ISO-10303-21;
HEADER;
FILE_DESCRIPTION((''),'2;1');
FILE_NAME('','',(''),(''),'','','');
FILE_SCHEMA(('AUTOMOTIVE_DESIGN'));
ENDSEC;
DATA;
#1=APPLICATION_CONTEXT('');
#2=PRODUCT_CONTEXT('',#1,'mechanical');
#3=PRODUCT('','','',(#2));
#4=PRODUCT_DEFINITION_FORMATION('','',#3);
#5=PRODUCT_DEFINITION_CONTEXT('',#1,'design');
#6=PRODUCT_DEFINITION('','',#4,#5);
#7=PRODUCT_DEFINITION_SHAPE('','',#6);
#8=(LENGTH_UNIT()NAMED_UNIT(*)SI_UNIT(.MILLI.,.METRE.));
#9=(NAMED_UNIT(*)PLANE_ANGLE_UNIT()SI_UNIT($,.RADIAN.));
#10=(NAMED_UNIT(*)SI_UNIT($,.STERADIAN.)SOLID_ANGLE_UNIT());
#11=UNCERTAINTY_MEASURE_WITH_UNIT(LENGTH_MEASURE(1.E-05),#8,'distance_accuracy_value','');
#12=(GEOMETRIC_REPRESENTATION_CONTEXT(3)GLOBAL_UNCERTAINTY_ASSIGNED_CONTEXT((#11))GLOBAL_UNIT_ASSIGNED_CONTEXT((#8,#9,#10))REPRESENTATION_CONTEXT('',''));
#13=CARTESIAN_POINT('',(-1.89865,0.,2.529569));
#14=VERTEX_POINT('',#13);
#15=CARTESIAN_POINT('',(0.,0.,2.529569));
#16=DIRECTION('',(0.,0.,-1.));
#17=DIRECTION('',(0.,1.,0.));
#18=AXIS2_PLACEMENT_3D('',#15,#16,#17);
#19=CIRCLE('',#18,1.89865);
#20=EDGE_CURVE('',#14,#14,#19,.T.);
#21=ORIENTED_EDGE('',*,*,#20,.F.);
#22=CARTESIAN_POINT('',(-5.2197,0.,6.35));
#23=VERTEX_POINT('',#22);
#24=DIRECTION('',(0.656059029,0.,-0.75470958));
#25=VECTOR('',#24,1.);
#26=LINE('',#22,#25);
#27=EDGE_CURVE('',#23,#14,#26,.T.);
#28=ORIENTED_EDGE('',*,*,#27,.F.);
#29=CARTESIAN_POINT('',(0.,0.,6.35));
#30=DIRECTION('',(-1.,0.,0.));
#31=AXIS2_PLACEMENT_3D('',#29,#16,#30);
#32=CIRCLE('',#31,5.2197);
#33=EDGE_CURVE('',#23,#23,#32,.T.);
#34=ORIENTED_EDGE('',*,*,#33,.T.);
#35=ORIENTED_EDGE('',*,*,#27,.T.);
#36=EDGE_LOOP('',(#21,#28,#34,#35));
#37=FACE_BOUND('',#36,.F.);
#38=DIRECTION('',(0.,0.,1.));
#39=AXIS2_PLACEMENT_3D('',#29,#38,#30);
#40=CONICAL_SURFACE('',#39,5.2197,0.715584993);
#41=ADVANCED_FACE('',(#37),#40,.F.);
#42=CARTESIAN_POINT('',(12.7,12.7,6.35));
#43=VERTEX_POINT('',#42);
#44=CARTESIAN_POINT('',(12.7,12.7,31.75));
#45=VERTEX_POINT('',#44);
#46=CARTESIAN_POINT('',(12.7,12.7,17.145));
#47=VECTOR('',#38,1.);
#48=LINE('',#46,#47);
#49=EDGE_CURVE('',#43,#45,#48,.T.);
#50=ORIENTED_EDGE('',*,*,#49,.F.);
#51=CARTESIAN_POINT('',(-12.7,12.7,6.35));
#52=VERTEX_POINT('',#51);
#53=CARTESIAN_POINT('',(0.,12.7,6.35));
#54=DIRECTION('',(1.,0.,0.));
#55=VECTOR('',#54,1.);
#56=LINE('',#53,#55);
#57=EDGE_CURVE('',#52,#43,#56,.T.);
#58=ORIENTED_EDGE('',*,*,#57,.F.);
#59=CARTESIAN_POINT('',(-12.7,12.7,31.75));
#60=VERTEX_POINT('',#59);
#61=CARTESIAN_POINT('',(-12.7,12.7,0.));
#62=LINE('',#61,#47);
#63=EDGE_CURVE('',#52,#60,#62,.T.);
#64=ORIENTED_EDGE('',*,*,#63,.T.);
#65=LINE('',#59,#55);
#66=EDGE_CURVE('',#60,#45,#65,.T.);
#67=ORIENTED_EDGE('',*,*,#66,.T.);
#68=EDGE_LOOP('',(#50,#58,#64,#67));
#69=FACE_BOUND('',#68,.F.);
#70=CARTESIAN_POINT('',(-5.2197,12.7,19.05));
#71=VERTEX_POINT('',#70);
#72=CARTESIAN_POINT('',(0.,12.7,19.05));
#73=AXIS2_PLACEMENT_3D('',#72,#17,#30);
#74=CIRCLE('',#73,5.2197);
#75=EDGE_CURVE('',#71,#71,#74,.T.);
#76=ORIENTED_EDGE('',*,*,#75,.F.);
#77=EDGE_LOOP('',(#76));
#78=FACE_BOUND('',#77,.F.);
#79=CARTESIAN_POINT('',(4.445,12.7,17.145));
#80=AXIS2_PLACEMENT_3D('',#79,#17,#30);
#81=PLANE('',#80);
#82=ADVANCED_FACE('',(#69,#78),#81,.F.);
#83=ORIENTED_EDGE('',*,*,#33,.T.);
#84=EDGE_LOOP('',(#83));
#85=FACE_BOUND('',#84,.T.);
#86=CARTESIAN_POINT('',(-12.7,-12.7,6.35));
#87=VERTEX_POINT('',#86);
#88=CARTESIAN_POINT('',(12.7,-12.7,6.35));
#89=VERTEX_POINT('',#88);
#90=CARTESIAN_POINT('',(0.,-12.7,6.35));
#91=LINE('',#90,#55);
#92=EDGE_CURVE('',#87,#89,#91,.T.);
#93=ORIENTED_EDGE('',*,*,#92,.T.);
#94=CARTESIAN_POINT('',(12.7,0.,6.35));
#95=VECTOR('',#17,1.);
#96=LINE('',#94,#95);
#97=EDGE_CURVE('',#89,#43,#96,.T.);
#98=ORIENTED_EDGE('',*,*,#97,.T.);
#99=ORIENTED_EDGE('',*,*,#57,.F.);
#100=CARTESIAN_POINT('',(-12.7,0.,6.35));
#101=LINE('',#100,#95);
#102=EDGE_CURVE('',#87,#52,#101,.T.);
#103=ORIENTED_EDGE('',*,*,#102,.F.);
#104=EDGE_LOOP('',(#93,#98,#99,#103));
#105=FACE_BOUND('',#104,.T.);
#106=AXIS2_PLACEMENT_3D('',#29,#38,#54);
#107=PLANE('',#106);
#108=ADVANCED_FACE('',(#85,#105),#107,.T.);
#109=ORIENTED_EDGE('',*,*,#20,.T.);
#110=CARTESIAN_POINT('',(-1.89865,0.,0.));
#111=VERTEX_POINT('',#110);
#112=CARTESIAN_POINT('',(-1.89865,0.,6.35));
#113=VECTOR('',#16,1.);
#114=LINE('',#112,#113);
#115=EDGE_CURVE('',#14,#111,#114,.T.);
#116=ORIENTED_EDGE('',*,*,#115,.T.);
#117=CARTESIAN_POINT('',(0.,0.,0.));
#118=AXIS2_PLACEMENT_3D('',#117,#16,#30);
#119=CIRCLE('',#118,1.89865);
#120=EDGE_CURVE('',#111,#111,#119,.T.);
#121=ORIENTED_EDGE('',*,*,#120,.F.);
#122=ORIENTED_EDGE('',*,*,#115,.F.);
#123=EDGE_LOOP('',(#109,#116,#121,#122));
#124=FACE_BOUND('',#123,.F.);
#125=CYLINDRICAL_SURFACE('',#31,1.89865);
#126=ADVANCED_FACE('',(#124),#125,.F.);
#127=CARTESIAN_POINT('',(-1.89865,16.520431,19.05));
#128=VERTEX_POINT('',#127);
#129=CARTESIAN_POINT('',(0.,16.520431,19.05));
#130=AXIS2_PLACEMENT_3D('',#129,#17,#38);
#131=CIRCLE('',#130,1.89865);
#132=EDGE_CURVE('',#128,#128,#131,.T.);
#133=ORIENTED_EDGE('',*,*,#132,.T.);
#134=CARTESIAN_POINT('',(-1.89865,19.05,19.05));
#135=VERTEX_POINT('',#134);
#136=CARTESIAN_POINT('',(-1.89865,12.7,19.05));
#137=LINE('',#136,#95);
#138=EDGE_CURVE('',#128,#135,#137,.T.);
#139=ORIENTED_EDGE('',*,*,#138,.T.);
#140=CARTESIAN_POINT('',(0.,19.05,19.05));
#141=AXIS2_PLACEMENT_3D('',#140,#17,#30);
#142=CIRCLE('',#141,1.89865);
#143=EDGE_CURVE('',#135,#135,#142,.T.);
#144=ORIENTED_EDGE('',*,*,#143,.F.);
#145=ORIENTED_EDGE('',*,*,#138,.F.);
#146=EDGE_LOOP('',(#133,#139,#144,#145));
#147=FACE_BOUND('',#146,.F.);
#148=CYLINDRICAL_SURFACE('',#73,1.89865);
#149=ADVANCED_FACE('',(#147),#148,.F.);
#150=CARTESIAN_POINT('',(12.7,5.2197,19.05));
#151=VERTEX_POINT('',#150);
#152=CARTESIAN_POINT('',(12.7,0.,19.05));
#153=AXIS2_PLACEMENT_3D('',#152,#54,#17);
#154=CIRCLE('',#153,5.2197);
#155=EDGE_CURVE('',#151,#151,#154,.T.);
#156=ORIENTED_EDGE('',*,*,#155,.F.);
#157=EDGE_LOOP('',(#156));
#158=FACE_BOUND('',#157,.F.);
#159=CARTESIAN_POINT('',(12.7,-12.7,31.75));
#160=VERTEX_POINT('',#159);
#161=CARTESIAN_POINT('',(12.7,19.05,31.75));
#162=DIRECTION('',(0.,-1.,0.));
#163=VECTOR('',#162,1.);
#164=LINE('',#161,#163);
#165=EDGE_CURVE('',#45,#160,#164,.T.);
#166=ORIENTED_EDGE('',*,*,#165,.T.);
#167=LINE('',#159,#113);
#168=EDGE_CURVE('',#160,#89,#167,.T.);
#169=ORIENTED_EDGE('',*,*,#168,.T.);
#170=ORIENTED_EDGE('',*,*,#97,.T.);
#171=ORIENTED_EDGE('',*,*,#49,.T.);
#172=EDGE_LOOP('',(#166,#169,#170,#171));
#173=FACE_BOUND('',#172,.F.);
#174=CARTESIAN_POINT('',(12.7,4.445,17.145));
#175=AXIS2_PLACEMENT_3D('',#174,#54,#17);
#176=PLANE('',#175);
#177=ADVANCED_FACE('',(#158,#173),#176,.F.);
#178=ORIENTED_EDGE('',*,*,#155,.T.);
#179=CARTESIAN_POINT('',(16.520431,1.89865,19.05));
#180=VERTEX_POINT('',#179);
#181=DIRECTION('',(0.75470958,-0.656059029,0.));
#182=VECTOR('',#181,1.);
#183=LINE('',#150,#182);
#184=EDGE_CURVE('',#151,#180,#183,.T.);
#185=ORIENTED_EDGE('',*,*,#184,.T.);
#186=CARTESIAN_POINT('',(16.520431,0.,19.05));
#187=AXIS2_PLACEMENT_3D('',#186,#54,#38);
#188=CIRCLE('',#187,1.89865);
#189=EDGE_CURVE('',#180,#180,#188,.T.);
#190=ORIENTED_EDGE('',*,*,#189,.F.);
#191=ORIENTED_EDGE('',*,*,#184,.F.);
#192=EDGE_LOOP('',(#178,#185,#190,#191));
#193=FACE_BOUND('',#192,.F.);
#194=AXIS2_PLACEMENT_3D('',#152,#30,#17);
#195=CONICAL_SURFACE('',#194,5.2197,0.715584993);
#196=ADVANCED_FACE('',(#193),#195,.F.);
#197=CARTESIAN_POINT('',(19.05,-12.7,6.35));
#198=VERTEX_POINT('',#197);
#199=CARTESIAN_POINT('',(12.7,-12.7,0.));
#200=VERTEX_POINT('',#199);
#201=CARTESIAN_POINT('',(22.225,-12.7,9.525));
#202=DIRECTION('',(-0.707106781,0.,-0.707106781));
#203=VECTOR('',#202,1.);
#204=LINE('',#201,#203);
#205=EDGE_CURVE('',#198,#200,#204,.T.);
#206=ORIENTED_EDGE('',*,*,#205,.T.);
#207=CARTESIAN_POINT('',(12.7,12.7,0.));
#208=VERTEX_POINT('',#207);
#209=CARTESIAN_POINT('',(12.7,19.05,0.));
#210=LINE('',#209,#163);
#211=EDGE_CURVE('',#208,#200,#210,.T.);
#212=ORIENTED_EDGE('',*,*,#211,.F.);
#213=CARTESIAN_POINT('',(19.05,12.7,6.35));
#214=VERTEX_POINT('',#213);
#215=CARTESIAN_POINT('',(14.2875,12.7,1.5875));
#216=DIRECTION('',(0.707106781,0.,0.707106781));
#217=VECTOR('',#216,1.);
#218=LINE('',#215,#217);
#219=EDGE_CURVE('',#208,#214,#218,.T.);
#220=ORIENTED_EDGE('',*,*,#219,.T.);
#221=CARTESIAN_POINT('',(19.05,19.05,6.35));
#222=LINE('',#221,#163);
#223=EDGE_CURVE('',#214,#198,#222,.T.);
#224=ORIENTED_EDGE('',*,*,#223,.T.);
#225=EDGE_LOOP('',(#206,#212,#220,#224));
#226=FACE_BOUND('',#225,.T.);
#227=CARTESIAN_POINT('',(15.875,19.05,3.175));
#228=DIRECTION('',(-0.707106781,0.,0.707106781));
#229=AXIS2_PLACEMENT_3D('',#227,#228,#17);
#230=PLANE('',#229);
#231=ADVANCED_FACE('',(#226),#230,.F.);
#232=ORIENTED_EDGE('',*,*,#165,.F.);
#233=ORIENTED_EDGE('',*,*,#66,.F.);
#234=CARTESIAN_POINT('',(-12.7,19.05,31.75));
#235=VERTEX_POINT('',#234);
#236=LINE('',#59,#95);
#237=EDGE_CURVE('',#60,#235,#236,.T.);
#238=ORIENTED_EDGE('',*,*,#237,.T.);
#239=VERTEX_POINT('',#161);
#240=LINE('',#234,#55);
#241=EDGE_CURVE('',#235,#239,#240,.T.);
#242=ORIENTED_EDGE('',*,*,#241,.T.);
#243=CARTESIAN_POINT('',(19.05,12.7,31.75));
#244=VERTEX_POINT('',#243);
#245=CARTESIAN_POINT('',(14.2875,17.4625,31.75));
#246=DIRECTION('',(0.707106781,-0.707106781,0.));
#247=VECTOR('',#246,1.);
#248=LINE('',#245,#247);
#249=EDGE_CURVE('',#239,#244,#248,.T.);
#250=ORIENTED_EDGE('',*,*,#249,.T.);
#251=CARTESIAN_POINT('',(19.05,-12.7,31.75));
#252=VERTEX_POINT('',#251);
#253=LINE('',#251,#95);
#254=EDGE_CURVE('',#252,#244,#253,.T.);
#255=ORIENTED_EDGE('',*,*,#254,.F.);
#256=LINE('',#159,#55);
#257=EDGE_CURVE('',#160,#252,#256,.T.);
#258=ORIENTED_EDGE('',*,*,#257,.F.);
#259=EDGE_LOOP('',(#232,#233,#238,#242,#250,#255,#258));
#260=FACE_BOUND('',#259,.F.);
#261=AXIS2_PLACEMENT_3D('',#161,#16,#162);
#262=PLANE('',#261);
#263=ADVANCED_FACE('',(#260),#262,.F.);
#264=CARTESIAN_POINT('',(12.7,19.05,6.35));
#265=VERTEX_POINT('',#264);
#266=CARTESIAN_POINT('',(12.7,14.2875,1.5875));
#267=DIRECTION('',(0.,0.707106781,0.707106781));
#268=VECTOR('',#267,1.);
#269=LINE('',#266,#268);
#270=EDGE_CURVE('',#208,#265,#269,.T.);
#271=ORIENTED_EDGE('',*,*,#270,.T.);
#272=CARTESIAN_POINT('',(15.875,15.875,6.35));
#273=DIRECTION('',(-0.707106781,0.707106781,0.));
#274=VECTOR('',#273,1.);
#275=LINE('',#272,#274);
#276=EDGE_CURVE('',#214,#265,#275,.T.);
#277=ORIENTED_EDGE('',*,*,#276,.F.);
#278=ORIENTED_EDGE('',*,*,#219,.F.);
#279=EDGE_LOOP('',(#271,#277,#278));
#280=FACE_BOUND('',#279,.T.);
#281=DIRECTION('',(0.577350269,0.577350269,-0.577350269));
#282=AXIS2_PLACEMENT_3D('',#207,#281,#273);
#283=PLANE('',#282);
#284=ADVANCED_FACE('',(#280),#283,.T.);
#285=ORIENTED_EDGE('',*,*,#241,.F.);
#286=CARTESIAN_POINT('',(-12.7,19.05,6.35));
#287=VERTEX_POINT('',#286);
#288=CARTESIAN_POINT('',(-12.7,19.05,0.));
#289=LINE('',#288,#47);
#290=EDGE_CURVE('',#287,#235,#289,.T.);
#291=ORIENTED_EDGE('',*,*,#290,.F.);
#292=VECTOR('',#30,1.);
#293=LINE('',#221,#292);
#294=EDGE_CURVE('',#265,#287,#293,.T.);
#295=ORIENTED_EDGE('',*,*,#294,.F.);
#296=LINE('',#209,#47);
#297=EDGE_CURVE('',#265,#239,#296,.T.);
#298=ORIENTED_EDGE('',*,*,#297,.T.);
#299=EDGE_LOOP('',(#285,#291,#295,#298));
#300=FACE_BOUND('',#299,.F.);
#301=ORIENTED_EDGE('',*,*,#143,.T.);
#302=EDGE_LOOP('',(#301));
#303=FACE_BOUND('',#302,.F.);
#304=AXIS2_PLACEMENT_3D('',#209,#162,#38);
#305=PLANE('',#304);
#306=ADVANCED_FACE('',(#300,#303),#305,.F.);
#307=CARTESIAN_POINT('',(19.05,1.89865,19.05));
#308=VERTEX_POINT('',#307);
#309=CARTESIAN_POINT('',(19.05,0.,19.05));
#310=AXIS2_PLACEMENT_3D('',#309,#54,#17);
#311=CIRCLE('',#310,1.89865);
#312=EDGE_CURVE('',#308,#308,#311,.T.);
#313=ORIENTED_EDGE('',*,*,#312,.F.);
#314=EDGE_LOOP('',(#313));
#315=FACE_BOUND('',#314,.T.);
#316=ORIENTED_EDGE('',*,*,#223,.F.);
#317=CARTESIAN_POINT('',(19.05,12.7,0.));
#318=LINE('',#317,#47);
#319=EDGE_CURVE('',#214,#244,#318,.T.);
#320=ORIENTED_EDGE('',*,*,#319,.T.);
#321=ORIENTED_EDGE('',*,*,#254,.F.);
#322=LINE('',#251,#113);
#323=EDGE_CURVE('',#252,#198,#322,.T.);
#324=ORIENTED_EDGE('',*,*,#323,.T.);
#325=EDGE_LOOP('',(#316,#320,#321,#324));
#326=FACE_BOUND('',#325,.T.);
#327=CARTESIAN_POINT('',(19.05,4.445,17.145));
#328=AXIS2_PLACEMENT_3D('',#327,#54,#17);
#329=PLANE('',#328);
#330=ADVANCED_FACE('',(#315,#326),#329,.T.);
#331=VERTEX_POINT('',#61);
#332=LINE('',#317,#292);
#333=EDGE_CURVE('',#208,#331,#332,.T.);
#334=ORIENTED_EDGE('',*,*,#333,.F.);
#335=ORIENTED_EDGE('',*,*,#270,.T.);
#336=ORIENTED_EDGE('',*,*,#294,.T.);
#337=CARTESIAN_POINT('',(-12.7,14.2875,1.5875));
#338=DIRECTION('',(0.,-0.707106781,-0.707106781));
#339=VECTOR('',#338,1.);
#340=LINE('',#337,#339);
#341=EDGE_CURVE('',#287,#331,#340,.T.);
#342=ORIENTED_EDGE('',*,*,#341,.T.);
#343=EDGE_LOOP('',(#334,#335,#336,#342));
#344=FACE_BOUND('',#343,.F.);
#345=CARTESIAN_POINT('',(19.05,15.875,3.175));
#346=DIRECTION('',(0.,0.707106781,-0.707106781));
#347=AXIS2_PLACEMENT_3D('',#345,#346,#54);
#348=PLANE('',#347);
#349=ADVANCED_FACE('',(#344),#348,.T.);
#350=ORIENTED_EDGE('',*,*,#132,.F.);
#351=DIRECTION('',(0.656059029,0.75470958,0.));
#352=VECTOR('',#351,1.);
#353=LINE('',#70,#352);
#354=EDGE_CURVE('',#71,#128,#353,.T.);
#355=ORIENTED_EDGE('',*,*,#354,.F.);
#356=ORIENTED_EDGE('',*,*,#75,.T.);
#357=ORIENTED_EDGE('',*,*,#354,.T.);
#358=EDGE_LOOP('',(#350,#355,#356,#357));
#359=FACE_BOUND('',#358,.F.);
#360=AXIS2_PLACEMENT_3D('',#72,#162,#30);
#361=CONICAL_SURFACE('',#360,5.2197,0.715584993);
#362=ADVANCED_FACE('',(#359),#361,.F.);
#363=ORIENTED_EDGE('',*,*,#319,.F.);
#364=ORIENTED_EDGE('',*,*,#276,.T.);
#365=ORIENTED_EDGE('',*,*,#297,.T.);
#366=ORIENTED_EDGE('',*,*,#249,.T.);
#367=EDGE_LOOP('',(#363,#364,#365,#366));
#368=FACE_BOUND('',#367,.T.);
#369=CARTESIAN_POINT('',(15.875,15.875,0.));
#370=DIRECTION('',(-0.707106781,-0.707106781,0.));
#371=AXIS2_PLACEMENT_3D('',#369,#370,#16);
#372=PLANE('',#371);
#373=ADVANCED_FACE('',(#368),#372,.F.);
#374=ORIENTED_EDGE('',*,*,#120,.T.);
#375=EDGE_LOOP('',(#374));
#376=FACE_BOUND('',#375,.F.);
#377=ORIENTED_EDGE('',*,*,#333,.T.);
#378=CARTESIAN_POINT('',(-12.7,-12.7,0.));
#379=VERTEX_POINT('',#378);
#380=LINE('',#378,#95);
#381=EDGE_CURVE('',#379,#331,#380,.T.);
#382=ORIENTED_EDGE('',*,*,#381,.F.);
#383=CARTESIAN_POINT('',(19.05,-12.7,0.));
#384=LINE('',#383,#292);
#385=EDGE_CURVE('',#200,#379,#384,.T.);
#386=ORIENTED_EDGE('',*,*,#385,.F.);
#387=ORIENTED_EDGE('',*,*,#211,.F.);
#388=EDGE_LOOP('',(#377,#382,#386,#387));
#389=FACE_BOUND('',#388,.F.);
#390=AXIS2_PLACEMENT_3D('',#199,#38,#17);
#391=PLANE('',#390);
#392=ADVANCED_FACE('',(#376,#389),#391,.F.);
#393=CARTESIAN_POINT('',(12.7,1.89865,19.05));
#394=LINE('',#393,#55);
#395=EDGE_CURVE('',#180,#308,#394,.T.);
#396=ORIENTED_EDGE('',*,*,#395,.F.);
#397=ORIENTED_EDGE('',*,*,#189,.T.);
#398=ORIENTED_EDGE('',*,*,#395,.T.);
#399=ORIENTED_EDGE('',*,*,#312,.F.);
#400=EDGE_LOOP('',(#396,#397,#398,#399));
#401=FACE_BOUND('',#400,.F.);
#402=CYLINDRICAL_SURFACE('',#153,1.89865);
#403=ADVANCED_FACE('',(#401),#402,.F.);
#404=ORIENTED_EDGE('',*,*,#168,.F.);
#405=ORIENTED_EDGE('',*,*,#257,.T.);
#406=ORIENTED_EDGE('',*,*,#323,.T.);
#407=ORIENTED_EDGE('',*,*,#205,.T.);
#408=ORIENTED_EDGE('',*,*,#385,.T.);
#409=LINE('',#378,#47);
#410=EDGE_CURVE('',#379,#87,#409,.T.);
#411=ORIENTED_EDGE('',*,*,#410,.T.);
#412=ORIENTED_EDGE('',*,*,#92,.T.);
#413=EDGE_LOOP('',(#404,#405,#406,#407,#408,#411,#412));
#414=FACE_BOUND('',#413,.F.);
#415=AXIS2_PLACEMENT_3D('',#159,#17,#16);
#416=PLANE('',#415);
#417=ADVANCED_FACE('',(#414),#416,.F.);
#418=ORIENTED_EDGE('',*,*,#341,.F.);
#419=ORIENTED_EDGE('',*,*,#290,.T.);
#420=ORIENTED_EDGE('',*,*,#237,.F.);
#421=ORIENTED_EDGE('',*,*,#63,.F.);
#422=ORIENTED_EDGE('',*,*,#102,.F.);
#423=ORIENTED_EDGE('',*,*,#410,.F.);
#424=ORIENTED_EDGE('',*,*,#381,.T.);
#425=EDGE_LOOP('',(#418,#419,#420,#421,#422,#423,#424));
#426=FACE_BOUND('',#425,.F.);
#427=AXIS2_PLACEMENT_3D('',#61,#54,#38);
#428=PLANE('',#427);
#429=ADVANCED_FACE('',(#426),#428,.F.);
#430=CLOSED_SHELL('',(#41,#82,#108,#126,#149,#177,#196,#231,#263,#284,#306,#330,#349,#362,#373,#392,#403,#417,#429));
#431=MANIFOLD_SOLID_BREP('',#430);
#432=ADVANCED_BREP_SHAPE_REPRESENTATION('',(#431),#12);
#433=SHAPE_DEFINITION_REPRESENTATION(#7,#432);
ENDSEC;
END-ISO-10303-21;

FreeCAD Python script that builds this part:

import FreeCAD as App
import Part
import Sketcher
from FreeCAD import Vector
Q = App.Units.Quantity


def edges_at(feature, points):
    """Names of the edges that pass closest to the given points."""
    edges = feature.Shape.Edges
    near = lambda p: min(range(len(edges)), key=lambda i: edges[i].distToShape(Part.Vertex(*p))[0])
    return sorted({f"Edge{near(p) + 1}" for p in points})

doc = App.newDocument("Part")
body = doc.addObject("PartDesign::Body", "Body")

# Sketch on XY plane
sketch1 = body.newObject("Sketcher::SketchObject", "Sketch")
sketch1.AttachmentSupport = (doc.getObject("XY_Plane"), [""])
sketch1.MapMode = "FlatFace"
sketch1.addGeometry([
    Part.LineSegment(Vector(-13, 13, 0), Vector(-13, -13, 0)),
    Part.LineSegment(Vector(-13, -13, 0), Vector(13, -13, 0)),
    Part.LineSegment(Vector(13, -13, 0), Vector(13, 13, 0)),
    Part.LineSegment(Vector(13, 13, 0), Vector(-13, 13, 0)),
], False)
sketch1.addConstraint([
    Sketcher.Constraint("Coincident", 0, 2, 1, 1),
    Sketcher.Constraint("Coincident", 1, 2, 2, 1),
    Sketcher.Constraint("Coincident", 2, 2, 3, 1),
    Sketcher.Constraint("Coincident", 3, 2, 0, 1),
    Sketcher.Constraint("Vertical", 0),
    Sketcher.Constraint("Horizontal", 1),
    Sketcher.Constraint("Vertical", 2),
    Sketcher.Constraint("Horizontal", 3),
    Sketcher.Constraint("Symmetric", 0, 2, 2, 2, -1, 1),
    Sketcher.Constraint("Equal", 3, 0),
    Sketcher.Constraint("DistanceX", 1, 1, 1, 2, Q("1 in")),
])
pad1 = body.newObject("PartDesign::Pad", "Pad")
pad1.Profile = sketch1
pad1.Length = Q("0.25 in")

# Sketch on YZ plane
sketch2 = body.newObject("Sketcher::SketchObject", "Sketch001")
sketch2.AttachmentSupport = (doc.getObject("YZ_Plane"), [""])
sketch2.MapMode = "FlatFace"
sketch2.AttachmentOffset = App.Placement(Vector(0, 0, 0.5 * 25.4), App.Rotation())
sketch2.addGeometry([
    Part.LineSegment(Vector(19, 0, 0), Vector(19, 32, 0)),
    Part.LineSegment(Vector(19, 32, 0), Vector(-13, 32, 0)),
    Part.LineSegment(Vector(-13, 32, 0), Vector(-13, 0, 0)),
    Part.LineSegment(Vector(-13, 0, 0), Vector(19, 0, 0)),
], False)
sketch2.addConstraint([
    Sketcher.Constraint("Coincident", 0, 2, 1, 1),
    Sketcher.Constraint("Coincident", 1, 2, 2, 1),
    Sketcher.Constraint("Coincident", 2, 2, 3, 1),
    Sketcher.Constraint("Coincident", 3, 2, 0, 1),
    Sketcher.Constraint("Vertical", 0),
    Sketcher.Constraint("Horizontal", 1),
    Sketcher.Constraint("Vertical", 2),
    Sketcher.Constraint("Horizontal", 3),
    Sketcher.Constraint("PointOnObject", 2, 2, -1),
    Sketcher.Constraint("Equal", 3, 0),
    Sketcher.Constraint("DistanceX", 1, 2, 1, 1, Q("1.25 in")),
    Sketcher.Constraint("DistanceX", 1, 2, -1, 1, Q("0.5 in")),
])
pad2 = body.newObject("PartDesign::Pad", "Pad001")
pad2.Profile = sketch2
pad2.Length = Q("0.25 in")

# Sketch on XZ plane
sketch3 = body.newObject("Sketcher::SketchObject", "Sketch002")
sketch3.AttachmentSupport = (doc.getObject("XZ_Plane"), [""])
sketch3.MapMode = "FlatFace"
sketch3.AttachmentOffset = App.Placement(Vector(0, 0, -0.5 * 25.4), App.Rotation())
sketch3.addGeometry([
    Part.LineSegment(Vector(19, 32, 0), Vector(19, 0, 0)),
    Part.LineSegment(Vector(19, 0, 0), Vector(-13, 0, 0)),
    Part.LineSegment(Vector(-13, 0, 0), Vector(-13, 32, 0)),
    Part.LineSegment(Vector(-13, 32, 0), Vector(19, 32, 0)),
], False)
sketch3.addConstraint([
    Sketcher.Constraint("Coincident", 0, 2, 1, 1),
    Sketcher.Constraint("Coincident", 1, 2, 2, 1),
    Sketcher.Constraint("Coincident", 2, 2, 3, 1),
    Sketcher.Constraint("Coincident", 3, 2, 0, 1),
    Sketcher.Constraint("Vertical", 0),
    Sketcher.Constraint("Horizontal", 1),
    Sketcher.Constraint("Vertical", 2),
    Sketcher.Constraint("Horizontal", 3),
    Sketcher.Constraint("PointOnObject", 0, 2, -1),
    Sketcher.Constraint("Equal", 3, 0),
    Sketcher.Constraint("DistanceX", 1, 2, 1, 1, Q("1.25 in")),
    Sketcher.Constraint("DistanceX", 1, 2, -1, 1, Q("0.5 in")),
])
pad3 = body.newObject("PartDesign::Pad", "Pad002")
pad3.Profile = sketch3
pad3.Length = Q("0.25 in")
pad3.Reversed = True

# Sketch on YZ plane
sketch4 = body.newObject("Sketcher::SketchObject", "Sketch003")
sketch4.AttachmentSupport = (doc.getObject("YZ_Plane"), [""])
sketch4.MapMode = "FlatFace"
sketch4.AttachmentOffset = App.Placement(Vector(0, 0, 0.5 * 25.4), App.Rotation())
sketch4.addGeometry(Part.Circle(Vector(0, 19.1, 0), Vector(0, 0, 1), 1.9), False)
sketch4.addConstraint([
    Sketcher.Constraint("PointOnObject", 0, 3, -2),
    Sketcher.Constraint("Diameter", 0, Q("0.1495 in")),
    Sketcher.Constraint("DistanceY", -1, 1, 0, 3, Q("0.75 in")),
])
doc.recompute()
hole = body.newObject("PartDesign::Hole", "Hole")
hole.Profile = sketch4
hole.ThreadType = "None"
hole.Diameter = Q("0.1495 in")
hole.DepthType = "ThroughAll"
hole.HoleCutType = "Countersink"
hole.HoleCutDiameter = Q("0.411 in")
hole.HoleCutCountersinkAngle = 82
hole.Reversed = True

# Sketch on XY plane
sketch5 = body.newObject("Sketcher::SketchObject", "Sketch004")
sketch5.AttachmentSupport = (doc.getObject("XY_Plane"), [""])
sketch5.MapMode = "FlatFace"
sketch5.AttachmentOffset = App.Placement(Vector(0, 0, 0.25 * 25.4), App.Rotation())
sketch5.addGeometry(Part.Circle(Vector(0, 0, 0), Vector(0, 0, 1), 1.9), False)
sketch5.addConstraint([
    Sketcher.Constraint("Coincident", 0, 3, -1, 1),
    Sketcher.Constraint("Diameter", 0, Q("0.1495 in")),
])
doc.recompute()
hole2 = body.newObject("PartDesign::Hole", "Hole001")
hole2.Profile = sketch5
hole2.ThreadType = "None"
hole2.Diameter = Q("0.1495 in")
hole2.DepthType = "ThroughAll"
hole2.HoleCutType = "Countersink"
hole2.HoleCutDiameter = Q("0.411 in")
hole2.HoleCutCountersinkAngle = 82

# Sketch on XZ plane
sketch6 = body.newObject("Sketcher::SketchObject", "Sketch005")
sketch6.AttachmentSupport = (doc.getObject("XZ_Plane"), [""])
sketch6.MapMode = "FlatFace"
sketch6.AttachmentOffset = App.Placement(Vector(0, 0, -0.5 * 25.4), App.Rotation())
sketch6.addGeometry(Part.Circle(Vector(0, 19.1, 0), Vector(0, 0, 1), 1.9), False)
sketch6.addConstraint([
    Sketcher.Constraint("PointOnObject", 0, 3, -2),
    Sketcher.Constraint("Diameter", 0, Q("0.1495 in")),
    Sketcher.Constraint("DistanceY", -1, 1, 0, 3, Q("0.75 in")),
])
doc.recompute()
hole3 = body.newObject("PartDesign::Hole", "Hole002")
hole3.Profile = sketch6
hole3.ThreadType = "None"
hole3.Diameter = Q("0.1495 in")
hole3.DepthType = "ThroughAll"
hole3.HoleCutType = "Countersink"
hole3.HoleCutDiameter = Q("0.411 in")
hole3.HoleCutCountersinkAngle = 82
doc.recompute()

chamfer = body.newObject("PartDesign::Chamfer", "Chamfer")
chamfer.Base = (hole3, edges_at(hole3, [(19.05, 19.05, 15.875), (19.05, 3.175, 0), (3.175, 19.05, 0)]))
chamfer.Size = Q("0.25 in")

doc.recompute()
